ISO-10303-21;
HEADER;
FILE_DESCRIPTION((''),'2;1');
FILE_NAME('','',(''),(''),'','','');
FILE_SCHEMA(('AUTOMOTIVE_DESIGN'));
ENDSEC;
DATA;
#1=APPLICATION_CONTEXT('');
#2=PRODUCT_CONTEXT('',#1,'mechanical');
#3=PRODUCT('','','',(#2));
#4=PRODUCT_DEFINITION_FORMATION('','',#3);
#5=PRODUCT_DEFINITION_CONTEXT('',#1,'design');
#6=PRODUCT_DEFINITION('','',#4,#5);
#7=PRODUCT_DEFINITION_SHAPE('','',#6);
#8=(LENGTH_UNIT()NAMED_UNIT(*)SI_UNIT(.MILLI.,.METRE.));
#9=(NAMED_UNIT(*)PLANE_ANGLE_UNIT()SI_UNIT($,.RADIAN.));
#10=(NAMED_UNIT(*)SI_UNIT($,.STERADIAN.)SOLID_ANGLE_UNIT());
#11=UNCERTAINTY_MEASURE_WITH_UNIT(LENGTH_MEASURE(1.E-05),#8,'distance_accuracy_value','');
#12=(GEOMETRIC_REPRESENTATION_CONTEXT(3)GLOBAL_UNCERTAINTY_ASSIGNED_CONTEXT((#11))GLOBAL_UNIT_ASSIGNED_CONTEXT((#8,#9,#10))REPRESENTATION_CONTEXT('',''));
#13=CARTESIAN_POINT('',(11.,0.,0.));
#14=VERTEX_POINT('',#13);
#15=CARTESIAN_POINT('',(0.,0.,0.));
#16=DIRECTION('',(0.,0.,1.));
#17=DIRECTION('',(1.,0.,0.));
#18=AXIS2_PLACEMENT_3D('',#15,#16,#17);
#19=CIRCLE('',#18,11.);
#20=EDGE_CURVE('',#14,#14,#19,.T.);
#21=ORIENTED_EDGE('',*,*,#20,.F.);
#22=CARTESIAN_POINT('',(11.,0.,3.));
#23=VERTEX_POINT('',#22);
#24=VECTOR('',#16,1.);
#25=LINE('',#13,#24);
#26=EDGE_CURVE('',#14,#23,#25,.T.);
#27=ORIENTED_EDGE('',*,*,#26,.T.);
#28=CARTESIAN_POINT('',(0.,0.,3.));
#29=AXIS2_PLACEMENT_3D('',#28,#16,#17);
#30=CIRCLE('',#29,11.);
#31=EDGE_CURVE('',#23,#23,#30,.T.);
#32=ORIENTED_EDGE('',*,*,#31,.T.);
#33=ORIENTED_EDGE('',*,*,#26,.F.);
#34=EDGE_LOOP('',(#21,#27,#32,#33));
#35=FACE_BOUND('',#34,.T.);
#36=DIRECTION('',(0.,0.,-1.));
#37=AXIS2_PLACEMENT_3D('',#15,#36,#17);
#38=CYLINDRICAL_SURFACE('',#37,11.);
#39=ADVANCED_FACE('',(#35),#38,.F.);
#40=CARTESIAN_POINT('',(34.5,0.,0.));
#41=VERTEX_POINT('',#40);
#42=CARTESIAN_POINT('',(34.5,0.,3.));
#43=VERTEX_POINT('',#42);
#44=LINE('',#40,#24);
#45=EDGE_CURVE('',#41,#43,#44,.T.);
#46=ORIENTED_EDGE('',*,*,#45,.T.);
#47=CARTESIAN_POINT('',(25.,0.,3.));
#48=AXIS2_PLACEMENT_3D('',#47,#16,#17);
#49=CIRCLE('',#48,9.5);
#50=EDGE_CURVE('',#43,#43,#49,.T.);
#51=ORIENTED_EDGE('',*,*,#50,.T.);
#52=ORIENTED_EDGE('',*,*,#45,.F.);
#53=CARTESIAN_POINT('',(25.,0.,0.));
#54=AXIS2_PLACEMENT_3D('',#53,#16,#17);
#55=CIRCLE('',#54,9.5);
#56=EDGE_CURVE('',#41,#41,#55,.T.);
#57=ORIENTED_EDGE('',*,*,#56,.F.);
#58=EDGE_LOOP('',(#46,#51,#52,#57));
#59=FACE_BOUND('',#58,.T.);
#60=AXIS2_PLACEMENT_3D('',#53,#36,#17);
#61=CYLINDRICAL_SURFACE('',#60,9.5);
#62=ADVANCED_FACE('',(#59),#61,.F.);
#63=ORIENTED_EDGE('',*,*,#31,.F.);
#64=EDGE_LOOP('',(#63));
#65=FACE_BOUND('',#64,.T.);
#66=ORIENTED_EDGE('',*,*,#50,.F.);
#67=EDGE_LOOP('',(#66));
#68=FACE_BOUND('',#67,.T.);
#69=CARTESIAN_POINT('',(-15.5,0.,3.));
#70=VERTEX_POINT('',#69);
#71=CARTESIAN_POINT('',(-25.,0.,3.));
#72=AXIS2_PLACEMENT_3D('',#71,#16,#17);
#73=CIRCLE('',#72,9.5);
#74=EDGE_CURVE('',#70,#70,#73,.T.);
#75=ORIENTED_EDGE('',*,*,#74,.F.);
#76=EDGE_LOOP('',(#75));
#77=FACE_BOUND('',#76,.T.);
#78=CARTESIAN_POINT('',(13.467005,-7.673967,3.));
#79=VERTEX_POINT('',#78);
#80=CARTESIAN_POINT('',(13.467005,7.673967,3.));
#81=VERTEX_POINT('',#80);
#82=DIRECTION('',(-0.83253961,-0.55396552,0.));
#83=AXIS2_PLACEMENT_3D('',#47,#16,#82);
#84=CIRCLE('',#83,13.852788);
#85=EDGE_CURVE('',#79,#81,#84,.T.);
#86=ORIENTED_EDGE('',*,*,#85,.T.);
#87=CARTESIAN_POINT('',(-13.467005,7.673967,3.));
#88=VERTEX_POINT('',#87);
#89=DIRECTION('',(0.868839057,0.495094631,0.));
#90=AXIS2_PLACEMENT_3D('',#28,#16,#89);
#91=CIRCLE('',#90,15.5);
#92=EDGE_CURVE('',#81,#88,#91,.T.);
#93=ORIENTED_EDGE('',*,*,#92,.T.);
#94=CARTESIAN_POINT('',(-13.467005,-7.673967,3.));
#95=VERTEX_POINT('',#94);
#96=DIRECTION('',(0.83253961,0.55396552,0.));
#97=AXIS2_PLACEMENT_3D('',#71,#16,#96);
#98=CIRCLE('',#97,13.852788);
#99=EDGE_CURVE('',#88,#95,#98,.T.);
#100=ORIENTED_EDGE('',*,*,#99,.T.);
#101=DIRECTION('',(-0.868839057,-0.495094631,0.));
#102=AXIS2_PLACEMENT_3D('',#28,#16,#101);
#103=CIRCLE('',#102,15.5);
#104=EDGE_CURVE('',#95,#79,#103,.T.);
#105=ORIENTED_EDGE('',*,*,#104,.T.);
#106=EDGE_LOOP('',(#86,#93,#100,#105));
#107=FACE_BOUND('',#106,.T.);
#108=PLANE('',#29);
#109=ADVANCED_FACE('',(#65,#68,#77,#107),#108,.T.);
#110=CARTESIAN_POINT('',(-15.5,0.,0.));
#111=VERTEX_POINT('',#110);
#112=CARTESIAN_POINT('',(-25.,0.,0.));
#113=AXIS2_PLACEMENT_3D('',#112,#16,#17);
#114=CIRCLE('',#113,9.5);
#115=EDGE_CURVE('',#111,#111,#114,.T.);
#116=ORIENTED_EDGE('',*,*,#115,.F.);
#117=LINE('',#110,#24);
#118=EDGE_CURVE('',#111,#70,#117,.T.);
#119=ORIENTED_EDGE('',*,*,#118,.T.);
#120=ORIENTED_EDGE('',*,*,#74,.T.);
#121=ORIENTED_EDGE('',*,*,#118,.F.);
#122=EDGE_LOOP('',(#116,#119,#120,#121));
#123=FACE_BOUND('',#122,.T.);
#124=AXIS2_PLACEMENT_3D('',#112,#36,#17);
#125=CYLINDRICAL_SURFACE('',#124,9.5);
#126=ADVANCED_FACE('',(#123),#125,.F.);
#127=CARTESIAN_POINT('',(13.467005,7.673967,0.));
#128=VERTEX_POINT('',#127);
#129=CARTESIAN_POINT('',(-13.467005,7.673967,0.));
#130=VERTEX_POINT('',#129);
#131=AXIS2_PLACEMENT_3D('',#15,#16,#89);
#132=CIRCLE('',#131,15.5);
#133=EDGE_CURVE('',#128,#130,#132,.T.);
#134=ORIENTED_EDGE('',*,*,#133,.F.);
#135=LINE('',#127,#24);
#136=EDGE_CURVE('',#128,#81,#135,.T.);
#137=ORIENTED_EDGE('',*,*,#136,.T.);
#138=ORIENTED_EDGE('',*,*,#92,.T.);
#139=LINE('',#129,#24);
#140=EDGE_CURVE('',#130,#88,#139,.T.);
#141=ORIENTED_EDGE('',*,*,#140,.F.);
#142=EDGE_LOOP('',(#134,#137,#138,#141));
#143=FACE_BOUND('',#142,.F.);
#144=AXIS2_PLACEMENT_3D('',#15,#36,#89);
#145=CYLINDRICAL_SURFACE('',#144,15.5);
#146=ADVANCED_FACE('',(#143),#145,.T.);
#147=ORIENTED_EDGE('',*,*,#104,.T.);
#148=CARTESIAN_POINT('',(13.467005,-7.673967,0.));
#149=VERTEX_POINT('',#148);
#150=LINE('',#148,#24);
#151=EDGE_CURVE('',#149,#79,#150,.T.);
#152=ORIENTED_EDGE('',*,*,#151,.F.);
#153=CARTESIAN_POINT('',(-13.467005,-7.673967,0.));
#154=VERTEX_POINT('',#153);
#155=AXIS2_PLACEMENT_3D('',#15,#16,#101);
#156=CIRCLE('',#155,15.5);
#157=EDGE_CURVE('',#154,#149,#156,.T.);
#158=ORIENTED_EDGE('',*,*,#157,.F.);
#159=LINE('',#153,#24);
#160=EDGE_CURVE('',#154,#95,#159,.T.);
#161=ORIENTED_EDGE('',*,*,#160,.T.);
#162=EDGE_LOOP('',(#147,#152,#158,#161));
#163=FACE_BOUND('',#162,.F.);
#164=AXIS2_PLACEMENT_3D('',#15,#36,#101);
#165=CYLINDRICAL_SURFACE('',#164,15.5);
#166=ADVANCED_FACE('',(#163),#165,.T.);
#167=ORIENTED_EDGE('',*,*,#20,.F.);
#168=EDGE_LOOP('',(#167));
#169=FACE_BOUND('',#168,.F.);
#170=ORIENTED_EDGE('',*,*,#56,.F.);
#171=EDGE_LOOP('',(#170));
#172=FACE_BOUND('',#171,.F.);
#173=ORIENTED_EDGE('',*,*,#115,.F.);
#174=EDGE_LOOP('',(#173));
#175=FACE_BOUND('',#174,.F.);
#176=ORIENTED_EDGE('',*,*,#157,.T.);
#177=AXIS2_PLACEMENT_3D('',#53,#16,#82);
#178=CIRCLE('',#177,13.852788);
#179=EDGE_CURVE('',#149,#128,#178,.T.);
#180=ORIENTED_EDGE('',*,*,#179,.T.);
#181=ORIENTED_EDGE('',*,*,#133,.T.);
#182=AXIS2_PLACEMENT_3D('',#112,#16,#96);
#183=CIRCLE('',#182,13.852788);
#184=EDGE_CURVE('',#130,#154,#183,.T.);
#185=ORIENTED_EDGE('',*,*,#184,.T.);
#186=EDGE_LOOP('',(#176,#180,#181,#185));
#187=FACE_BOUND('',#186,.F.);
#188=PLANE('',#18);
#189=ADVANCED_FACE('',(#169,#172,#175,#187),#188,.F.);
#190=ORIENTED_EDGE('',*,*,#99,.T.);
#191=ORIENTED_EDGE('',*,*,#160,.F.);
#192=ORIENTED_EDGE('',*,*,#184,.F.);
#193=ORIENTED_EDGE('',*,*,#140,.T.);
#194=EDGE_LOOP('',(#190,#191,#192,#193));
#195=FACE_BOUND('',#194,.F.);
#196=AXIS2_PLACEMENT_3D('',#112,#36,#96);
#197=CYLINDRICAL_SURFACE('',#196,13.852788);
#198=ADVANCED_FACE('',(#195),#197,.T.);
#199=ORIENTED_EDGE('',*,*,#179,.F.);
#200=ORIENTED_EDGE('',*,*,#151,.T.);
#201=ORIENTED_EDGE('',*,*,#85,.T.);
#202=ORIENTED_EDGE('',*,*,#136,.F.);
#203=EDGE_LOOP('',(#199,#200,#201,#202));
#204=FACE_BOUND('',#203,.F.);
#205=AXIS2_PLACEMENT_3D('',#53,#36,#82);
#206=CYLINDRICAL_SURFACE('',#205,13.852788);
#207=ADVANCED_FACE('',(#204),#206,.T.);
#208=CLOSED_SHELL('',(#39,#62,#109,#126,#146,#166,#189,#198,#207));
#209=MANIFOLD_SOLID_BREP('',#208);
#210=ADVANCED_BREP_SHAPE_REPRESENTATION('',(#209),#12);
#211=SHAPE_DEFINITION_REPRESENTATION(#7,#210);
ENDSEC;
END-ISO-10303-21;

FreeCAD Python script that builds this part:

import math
import FreeCAD as App
import Part
import Sketcher

V = App.Vector
Q = App.Units.Quantity

doc = App.newDocument("Part")
body = doc.addObject("PartDesign::Body", "Body")

# Sketch on XY plane
sketch1 = body.newObject("Sketcher::SketchObject", "Sketch")
sketch1.AttachmentSupport = (doc.getObject("XY_Plane"), [""])
sketch1.MapMode = "FlatFace"
sketch1.addGeometry(Part.ArcOfCircle(Part.Circle(V(-25, 0, 0), V(0, 0, 1), 14), math.radians(34), math.radians(326)), False)
sketch1.addGeometry(Part.ArcOfCircle(Part.Circle(V(0, 0, 0), V(0, 0, 1), 15), math.radians(-150), math.radians(-30)), False)
sketch1.addGeometry(Part.ArcOfCircle(Part.Circle(V(25, 0, 0), V(0, 0, 1), 14), math.radians(-146), math.radians(146)), False)
sketch1.addGeometry(Part.ArcOfCircle(Part.Circle(V(0, 0, 0), V(0, 0, 1), 15), math.radians(30), math.radians(150)), False)
sketch1.addGeometry(Part.Circle(V(-25, 0, 0), V(0, 0, 1), 10), False)
sketch1.addGeometry(Part.Circle(V(0, 0, 0), V(0, 0, 1), 11), False)
sketch1.addGeometry(Part.Circle(V(25, 0, 0), V(0, 0, 1), 10), False)
sketch1.addConstraint(Sketcher.Constraint("Coincident", 0, 2, 1, 1))
sketch1.addConstraint(Sketcher.Constraint("Coincident", 1, 2, 2, 1))
sketch1.addConstraint(Sketcher.Constraint("Coincident", 2, 2, 3, 1))
sketch1.addConstraint(Sketcher.Constraint("Coincident", 3, 2, 0, 1))
sketch1.addConstraint(Sketcher.Constraint("Coincident", 1, 3, -1, 1))
sketch1.addConstraint(Sketcher.Constraint("Coincident", 3, 3, -1, 1))
sketch1.addConstraint(Sketcher.Constraint("Coincident", 5, 3, -1, 1))
sketch1.addConstraint(Sketcher.Constraint("Coincident", 4, 3, 0, 3))
sketch1.addConstraint(Sketcher.Constraint("Coincident", 6, 3, 2, 3))
sketch1.addConstraint(Sketcher.Constraint("Equal", 0, 2))
sketch1.addConstraint(Sketcher.Constraint("Equal", 1, 3))
sketch1.addConstraint(Sketcher.Constraint("Equal", 4, 6))
sketch1.addConstraint(Sketcher.Constraint("Symmetric", 0, 3, 2, 3, -1, 1))
sketch1.addConstraint(Sketcher.Constraint("PointOnObject", 0, 3, -1))
sketch1.addConstraint(Sketcher.Constraint("Diameter", 4, Q("19 mm")))
sketch1.addConstraint(Sketcher.Constraint("Diameter", 5, Q("22 mm")))
sketch1.addConstraint(Sketcher.Constraint("Radius", 1, Q("15.5 mm")))
sketch1.addConstraint(Sketcher.Constraint("DistanceX", 0, 3, -1, 1, Q("25 mm")))
sketch1.addConstraint(Sketcher.Constraint("Radius", 0, Q("13.852788 mm")))
pad1 = body.newObject("PartDesign::Pad", "Pad")
pad1.Profile = sketch1
pad1.Length = 3

doc.recompute()
